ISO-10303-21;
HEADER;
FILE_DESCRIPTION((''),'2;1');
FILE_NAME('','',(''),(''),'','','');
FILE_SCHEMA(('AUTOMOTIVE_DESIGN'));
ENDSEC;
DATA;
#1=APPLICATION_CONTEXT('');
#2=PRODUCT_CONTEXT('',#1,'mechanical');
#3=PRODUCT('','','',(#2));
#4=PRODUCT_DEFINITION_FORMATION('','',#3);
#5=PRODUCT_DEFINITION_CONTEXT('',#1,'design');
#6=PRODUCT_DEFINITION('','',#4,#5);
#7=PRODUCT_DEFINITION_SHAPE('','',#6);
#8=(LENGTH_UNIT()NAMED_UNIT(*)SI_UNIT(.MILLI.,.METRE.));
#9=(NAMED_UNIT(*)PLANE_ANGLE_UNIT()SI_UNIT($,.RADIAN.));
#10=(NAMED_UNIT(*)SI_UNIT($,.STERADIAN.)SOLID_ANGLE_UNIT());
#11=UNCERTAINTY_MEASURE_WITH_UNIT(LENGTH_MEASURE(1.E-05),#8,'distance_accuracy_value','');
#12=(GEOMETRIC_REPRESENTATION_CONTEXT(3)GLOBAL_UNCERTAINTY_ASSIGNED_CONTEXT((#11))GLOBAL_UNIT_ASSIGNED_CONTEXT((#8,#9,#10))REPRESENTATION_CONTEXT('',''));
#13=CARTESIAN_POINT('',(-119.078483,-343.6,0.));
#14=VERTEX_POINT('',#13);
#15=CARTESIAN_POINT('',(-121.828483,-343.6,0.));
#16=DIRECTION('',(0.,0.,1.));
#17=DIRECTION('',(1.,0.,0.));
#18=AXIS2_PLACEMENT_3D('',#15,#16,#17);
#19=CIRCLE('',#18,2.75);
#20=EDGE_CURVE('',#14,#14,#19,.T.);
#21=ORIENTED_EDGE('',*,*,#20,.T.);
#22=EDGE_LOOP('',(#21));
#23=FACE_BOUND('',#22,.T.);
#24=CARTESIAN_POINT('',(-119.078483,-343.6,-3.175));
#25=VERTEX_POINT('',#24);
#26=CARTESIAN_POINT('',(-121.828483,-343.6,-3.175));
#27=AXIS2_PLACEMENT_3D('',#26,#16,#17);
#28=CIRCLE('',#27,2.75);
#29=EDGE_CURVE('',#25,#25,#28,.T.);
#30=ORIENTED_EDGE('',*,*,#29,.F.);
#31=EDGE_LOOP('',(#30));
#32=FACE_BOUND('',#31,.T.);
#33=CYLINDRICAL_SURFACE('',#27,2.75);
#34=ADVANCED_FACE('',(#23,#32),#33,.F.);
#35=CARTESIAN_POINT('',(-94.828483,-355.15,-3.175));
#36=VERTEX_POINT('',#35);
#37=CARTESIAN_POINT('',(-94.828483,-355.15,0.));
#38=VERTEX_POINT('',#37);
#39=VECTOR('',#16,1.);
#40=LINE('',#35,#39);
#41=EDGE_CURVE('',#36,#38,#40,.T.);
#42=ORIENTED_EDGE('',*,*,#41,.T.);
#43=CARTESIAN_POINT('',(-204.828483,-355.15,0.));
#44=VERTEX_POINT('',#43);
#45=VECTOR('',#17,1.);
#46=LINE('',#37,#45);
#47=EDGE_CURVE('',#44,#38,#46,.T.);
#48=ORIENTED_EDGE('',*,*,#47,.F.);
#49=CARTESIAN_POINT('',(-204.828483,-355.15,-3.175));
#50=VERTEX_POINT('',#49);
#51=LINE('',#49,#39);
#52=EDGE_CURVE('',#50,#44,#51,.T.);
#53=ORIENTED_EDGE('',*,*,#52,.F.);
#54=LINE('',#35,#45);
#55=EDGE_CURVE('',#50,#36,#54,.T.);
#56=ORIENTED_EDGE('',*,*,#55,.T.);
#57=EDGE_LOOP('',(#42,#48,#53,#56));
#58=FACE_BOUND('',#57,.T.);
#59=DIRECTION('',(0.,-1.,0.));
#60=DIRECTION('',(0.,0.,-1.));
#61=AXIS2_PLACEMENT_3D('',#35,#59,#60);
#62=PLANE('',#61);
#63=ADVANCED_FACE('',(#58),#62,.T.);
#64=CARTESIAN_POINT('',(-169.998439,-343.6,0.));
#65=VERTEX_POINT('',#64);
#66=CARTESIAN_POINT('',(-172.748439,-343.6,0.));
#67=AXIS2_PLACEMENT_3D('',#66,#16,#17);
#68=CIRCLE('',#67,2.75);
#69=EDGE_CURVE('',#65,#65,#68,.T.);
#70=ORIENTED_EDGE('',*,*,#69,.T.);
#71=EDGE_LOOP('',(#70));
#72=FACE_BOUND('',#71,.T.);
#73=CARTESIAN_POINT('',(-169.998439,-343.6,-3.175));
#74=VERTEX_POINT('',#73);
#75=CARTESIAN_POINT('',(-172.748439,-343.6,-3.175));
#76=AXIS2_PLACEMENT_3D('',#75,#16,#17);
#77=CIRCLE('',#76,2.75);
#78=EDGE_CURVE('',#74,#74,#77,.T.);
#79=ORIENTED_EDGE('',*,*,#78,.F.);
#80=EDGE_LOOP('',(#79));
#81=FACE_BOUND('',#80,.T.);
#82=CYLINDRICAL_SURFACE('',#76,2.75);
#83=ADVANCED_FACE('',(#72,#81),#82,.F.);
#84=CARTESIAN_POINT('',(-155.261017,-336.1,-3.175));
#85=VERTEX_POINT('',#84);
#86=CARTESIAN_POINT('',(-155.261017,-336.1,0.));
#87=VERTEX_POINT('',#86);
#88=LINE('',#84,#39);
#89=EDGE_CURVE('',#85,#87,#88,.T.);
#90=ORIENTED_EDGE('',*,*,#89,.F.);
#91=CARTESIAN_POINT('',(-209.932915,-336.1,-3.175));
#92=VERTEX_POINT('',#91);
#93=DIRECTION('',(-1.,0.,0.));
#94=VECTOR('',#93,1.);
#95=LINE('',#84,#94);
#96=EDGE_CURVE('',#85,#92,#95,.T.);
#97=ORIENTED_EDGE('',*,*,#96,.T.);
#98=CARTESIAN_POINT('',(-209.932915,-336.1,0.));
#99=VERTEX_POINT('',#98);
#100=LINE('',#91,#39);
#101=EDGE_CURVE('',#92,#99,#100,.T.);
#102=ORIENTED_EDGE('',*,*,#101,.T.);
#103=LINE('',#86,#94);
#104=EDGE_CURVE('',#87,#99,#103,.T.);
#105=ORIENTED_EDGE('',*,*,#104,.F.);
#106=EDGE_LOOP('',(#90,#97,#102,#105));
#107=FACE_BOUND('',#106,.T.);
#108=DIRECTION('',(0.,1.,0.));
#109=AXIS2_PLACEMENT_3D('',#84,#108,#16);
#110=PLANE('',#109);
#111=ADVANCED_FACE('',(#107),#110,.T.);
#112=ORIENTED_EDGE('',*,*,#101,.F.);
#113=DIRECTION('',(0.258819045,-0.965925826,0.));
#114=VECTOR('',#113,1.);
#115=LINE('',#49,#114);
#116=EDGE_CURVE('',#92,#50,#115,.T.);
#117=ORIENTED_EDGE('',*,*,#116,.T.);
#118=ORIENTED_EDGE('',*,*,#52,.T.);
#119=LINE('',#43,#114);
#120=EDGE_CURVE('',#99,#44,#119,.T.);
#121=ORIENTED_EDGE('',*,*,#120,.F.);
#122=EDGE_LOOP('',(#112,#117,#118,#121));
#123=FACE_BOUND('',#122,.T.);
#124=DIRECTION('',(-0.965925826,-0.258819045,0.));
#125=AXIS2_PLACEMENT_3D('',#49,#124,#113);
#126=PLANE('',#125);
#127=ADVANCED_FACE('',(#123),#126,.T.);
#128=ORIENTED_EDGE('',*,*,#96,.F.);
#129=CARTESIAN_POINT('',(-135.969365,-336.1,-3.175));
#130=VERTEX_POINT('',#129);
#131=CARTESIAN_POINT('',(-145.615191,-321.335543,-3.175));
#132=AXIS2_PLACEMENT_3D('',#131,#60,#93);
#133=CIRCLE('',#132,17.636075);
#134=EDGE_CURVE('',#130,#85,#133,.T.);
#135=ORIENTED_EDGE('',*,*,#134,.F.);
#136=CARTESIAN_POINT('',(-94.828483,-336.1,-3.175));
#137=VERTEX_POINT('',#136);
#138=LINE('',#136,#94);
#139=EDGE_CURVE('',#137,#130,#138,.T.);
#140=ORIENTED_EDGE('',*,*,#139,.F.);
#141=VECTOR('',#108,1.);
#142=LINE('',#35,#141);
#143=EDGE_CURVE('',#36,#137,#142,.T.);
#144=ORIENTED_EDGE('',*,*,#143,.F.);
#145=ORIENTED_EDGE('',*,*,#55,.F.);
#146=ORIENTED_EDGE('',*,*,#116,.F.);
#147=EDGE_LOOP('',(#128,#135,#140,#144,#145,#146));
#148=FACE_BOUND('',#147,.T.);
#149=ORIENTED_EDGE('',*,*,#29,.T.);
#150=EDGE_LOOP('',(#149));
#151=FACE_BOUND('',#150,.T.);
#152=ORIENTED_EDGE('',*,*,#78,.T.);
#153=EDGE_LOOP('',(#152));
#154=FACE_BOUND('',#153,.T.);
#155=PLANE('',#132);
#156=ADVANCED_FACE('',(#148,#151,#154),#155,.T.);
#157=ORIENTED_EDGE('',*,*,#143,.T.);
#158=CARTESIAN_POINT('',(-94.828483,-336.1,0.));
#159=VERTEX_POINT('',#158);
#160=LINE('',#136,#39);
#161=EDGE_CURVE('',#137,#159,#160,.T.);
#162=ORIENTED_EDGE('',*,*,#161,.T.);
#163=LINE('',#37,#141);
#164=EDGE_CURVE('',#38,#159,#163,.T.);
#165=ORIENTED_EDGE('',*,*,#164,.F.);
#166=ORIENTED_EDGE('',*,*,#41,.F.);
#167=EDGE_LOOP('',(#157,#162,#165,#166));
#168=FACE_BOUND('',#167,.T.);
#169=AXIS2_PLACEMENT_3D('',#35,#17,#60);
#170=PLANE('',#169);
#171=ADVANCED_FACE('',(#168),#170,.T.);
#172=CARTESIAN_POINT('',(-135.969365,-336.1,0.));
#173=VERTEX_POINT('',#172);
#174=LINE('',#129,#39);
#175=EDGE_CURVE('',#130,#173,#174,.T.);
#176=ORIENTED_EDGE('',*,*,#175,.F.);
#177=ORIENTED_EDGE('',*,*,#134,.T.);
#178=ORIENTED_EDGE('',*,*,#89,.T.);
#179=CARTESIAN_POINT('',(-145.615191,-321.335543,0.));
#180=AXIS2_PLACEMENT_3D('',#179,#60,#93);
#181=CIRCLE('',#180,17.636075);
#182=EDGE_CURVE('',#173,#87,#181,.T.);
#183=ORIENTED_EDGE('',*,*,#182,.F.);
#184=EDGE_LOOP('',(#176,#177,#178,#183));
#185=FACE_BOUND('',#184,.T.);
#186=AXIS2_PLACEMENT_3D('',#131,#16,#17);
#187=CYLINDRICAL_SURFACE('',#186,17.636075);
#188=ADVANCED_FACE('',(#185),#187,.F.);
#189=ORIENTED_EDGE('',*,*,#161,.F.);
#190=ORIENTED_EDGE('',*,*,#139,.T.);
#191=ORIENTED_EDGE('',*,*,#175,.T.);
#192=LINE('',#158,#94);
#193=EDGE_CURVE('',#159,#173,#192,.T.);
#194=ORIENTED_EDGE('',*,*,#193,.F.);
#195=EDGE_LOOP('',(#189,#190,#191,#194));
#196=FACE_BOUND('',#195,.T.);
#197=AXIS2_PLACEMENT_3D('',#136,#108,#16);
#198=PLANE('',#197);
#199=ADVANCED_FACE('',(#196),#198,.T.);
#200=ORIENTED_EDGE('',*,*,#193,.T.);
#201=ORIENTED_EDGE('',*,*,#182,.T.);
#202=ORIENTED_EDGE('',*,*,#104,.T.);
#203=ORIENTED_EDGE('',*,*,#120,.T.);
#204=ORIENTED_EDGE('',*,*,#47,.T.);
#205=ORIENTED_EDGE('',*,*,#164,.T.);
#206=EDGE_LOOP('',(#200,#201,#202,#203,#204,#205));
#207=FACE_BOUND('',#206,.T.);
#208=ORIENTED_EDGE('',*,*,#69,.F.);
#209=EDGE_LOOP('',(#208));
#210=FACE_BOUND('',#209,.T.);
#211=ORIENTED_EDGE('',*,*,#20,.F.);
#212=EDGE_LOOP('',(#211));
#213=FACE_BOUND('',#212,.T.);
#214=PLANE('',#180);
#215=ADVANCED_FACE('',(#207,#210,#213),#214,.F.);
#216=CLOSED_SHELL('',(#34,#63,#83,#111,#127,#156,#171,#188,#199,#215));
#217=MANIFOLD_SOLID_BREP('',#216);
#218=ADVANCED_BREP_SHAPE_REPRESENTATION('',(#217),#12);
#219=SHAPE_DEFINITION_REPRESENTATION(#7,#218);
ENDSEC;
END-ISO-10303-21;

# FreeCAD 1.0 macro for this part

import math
import FreeCAD as App
import Part
import Sketcher
Q = App.Units.Quantity

doc = App.newDocument("Part")
body = doc.addObject("PartDesign::Body", "Body")

sketch1 = body.newObject("Sketcher::SketchObject", "Sketch")
sketch1.AttachmentSupport = (doc.getObject("XY_Plane"), [""])
sketch1.MapMode = "FlatFace"
sketch1.addGeometry([
    Part.LineSegment(App.Vector(-204.8, -355.1, 0), App.Vector(-94.8, -355.1, 0)),
    Part.LineSegment(App.Vector(-94.8, -355.1, 0), App.Vector(-94.8, -336.1, 0)),
    Part.LineSegment(App.Vector(-94.8, -336.1, 0), App.Vector(-136, -336.1, 0)),
    Part.ArcOfCircle(Part.Circle(App.Vector(-145.6, -321.3, 0), App.Vector(0, 0, 1), 17.6), math.radians(-123), math.radians(-57)),
    Part.LineSegment(App.Vector(-155.3, -336.1, 0), App.Vector(-209.9, -336.1, 0)),
    Part.LineSegment(App.Vector(-209.9, -336.1, 0), App.Vector(-204.8, -355.1, 0)),
    Part.Circle(App.Vector(-121.8, -343.6, 0), App.Vector(0, 0, 1), 2.8),
    Part.Circle(App.Vector(-172.7, -343.6, 0), App.Vector(0, 0, 1), 2.8),
], False)
sketch1.addConstraint([
    Sketcher.Constraint("Coincident", 0, 2, 1, 1),
    Sketcher.Constraint("Coincident", 1, 2, 2, 1),
    Sketcher.Constraint("Coincident", 2, 2, 3, 2),
    Sketcher.Constraint("Coincident", 3, 1, 4, 1),
    Sketcher.Constraint("Coincident", 4, 2, 5, 1),
    Sketcher.Constraint("Coincident", 5, 2, 0, 1),
    Sketcher.Constraint("Horizontal", 0),
    Sketcher.Constraint("Vertical", 1),
    Sketcher.Constraint("Horizontal", 2),
    Sketcher.Constraint("Horizontal", 4),
    Sketcher.Constraint("Equal", 6, 7),
    Sketcher.Constraint("Horizontal", 6, 3, 7, 3),
    Sketcher.Constraint("Horizontal", 2, 2, 3, 1),
    Sketcher.Constraint("Diameter", 6, Q("5.5 mm")),
    Sketcher.Constraint("DistanceX", 0, 1, 0, 2, Q("110 mm")),
    Sketcher.Constraint("Angle", 5, Q("-75 deg")),
    Sketcher.Constraint("DistanceX", 6, 3, 0, 2, Q("27 mm")),
    Sketcher.Constraint("DistanceY", 1, 1, 1, 2, Q("19.05 mm")),
    Sketcher.Constraint("DistanceY", 6, 3, -1, 1, Q("343.6 mm")),
    Sketcher.Constraint("DistanceY", 1, 2, -1, 1, Q("336.1 mm")),
    Sketcher.Constraint("DistanceX", 4, 2, 4, 1, Q("54.671898 mm")),
    Sketcher.Constraint("Radius", 3, Q("17.636075 mm")),
    Sketcher.Constraint("DistanceX", 2, 2, 2, 1, Q("41.140882 mm")),
    Sketcher.Constraint("DistanceX", 3, 3, -1, 1, Q("145.615191 mm")),
    Sketcher.Constraint("DistanceX", 7, 3, -1, 1, Q("172.748439 mm")),
])
pad1 = body.newObject("PartDesign::Pad", "Pad")
pad1.Profile = sketch1
pad1.Length = 3.175
pad1.Reversed = True

doc.recompute()
